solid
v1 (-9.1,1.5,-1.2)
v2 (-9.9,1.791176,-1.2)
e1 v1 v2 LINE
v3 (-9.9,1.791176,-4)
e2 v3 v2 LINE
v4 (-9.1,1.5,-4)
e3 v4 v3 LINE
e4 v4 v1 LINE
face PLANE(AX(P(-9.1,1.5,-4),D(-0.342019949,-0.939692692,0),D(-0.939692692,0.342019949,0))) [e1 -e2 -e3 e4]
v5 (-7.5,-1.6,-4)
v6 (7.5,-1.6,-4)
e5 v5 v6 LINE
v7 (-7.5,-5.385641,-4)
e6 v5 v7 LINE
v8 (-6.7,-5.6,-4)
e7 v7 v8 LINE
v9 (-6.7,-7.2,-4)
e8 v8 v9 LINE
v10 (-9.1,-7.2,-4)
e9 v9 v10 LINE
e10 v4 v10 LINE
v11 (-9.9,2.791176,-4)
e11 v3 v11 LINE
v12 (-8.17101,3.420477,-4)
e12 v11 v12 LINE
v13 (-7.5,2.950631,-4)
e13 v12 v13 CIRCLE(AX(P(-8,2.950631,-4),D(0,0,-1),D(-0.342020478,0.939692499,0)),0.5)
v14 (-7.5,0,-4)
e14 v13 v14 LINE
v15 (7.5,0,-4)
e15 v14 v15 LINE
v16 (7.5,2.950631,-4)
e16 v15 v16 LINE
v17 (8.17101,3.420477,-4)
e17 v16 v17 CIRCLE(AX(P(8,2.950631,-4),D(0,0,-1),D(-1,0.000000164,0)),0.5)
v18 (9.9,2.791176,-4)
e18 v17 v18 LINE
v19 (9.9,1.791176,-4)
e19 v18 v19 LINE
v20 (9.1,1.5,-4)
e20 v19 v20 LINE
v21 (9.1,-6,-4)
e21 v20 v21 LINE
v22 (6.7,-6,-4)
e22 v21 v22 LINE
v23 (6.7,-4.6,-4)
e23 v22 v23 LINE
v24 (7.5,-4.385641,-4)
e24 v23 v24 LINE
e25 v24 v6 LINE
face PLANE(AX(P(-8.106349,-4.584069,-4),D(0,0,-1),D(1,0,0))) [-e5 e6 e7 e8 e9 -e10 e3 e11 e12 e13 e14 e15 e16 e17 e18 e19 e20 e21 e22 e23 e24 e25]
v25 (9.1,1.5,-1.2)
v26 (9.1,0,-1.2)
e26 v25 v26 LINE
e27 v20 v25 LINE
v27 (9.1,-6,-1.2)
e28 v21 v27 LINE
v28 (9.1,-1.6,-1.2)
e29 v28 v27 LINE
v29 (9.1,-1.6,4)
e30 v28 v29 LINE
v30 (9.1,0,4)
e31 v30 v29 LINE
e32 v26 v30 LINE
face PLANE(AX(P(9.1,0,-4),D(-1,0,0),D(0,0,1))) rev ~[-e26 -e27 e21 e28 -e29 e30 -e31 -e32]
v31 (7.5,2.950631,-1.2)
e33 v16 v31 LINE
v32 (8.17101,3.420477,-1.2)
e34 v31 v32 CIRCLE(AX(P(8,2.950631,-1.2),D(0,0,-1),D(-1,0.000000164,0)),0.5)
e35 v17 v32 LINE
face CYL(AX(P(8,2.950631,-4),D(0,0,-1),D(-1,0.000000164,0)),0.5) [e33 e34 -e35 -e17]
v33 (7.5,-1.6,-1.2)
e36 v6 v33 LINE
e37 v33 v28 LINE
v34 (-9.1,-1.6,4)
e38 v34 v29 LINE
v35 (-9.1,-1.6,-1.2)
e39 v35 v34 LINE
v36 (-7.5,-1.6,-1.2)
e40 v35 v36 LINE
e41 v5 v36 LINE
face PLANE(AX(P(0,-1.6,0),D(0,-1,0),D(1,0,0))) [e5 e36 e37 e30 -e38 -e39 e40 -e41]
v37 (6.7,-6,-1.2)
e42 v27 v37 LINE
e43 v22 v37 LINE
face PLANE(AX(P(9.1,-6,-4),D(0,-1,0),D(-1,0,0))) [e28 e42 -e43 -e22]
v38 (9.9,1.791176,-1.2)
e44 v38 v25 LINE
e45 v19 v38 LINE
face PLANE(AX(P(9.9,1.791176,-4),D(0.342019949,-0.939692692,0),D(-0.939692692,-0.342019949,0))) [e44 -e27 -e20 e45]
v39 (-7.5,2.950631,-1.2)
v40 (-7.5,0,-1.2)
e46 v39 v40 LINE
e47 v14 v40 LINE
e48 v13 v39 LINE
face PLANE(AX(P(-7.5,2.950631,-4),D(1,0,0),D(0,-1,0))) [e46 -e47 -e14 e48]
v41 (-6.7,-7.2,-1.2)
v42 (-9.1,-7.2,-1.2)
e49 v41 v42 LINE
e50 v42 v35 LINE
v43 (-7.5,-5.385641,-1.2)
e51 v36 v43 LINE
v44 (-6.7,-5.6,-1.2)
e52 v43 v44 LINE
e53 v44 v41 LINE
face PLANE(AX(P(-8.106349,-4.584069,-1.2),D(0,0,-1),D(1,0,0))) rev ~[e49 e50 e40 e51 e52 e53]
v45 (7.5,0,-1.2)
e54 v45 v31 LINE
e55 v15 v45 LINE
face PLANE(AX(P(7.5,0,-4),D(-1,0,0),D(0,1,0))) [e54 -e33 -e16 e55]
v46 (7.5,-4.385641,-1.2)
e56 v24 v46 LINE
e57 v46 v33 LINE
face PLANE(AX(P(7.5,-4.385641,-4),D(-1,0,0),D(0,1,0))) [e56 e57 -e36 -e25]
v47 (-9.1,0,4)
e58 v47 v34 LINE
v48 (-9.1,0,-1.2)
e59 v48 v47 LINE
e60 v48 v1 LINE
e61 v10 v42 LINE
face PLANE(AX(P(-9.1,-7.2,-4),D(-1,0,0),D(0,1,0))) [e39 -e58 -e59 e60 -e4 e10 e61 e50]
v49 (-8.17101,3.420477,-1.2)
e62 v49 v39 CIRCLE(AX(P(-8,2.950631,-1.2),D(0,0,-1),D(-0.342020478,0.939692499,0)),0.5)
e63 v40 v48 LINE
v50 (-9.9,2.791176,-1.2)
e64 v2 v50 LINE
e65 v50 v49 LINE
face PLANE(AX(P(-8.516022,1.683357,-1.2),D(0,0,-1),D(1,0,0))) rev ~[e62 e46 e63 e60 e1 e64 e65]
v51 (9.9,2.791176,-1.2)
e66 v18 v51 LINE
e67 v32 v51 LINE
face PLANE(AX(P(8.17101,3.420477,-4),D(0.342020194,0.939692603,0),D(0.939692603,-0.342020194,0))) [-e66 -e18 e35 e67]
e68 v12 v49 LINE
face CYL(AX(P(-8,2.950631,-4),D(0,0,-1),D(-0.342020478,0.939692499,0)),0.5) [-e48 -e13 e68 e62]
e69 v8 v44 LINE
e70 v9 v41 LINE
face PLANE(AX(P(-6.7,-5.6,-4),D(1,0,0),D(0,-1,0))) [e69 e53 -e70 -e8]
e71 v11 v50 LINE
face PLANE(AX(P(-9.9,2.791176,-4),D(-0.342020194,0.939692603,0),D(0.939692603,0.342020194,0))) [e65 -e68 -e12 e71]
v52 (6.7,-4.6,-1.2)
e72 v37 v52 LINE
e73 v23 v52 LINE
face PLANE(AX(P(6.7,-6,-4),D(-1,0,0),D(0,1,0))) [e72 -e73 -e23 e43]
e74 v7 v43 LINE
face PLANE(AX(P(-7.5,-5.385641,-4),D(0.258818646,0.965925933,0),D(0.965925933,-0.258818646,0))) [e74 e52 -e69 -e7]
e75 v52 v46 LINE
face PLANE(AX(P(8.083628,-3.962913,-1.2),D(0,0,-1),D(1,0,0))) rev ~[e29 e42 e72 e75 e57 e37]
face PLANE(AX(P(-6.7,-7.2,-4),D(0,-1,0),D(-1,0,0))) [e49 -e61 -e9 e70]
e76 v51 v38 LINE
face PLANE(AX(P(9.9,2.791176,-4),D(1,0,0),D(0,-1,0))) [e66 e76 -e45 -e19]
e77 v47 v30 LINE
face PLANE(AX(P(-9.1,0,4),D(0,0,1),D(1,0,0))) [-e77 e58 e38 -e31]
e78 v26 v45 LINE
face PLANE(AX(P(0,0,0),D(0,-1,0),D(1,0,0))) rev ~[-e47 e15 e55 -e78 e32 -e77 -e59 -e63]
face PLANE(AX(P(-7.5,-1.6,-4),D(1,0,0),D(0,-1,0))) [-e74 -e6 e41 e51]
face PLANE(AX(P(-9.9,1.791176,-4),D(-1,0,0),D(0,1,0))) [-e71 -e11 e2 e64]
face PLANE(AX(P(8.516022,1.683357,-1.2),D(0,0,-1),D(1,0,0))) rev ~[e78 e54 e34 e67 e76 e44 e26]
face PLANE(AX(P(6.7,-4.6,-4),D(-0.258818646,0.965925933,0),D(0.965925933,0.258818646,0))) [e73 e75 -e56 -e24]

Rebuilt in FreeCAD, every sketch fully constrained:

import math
import FreeCAD as App
import Part
import Sketcher

V = App.Vector
Q = App.Units.Quantity

doc = App.newDocument("Part")
body = doc.addObject("PartDesign::Body", "Body")

# Sketch on XZ plane
sketch1 = body.newObject("Sketcher::SketchObject", "Sketch")
sketch1.AttachmentSupport = (doc.getObject("XZ_Plane"), [""])
sketch1.MapMode = "FlatFace"
sketch1.addGeometry([
    Part.LineSegment(V(-9, 4, 0), V(-9, -4, 0)),
    Part.LineSegment(V(-9, -4, 0), V(9, -4, 0)),
    Part.LineSegment(V(9, -4, 0), V(9, 4, 0)),
    Part.LineSegment(V(9, 4, 0), V(-9, 4, 0)),
], False)
sketch1.addConstraint([
    Sketcher.Constraint("Coincident", 0, 2, 1, 1),
    Sketcher.Constraint("Coincident", 1, 2, 2, 1),
    Sketcher.Constraint("Coincident", 2, 2, 3, 1),
    Sketcher.Constraint("Coincident", 3, 2, 0, 1),
    Sketcher.Constraint("Vertical", 0),
    Sketcher.Constraint("Horizontal", 1),
    Sketcher.Constraint("Vertical", 2),
    Sketcher.Constraint("Horizontal", 3),
    Sketcher.Constraint("Symmetric", 0, 2, 2, 2, -1, 1),
    Sketcher.Constraint("DistanceY", 0, 2, 0, 1, 8.0),
    Sketcher.Constraint("DistanceX", 1, 1, 1, 2, 18.2),
])
pad1 = body.newObject("PartDesign::Pad", "Pad")
pad1.Profile = sketch1
pad1.Length = 1.6

# Sketch on XY plane
sketch2 = body.newObject("Sketcher::SketchObject", "Sketch001")
sketch2.AttachmentSupport = (doc.getObject("XY_Plane"), [""])
sketch2.MapMode = "FlatFace"
sketch2.AttachmentOffset = App.Placement(V(0, 0, -4), App.Rotation())
sketch2.addGeometry([
    Part.LineSegment(V(-9.1, -7.2, 0), V(-9.1, -1.6, 0)),  # 0
    Part.LineSegment(V(-9.1, -1.6, 0), V(-7.5, -1.6, 0)),  # 1
    Part.LineSegment(V(-7.5, -1.6, 0), V(-7.5, -5.39, 0)),  # 2
    Part.LineSegment(V(-7.5, -5.39, 0), V(-6.7, -5.6, 0)),  # 3
    Part.LineSegment(V(-6.7, -5.6, 0), V(-6.7, -7.2, 0)),  # 4
    Part.LineSegment(V(-6.7, -7.2, 0), V(-9.1, -7.2, 0)),  # 5
    Part.LineSegment(V(7.5, -4.39, 0), V(7.5, -1.6, 0)),  # 6
    Part.LineSegment(V(7.5, -1.6, 0), V(9.1, -1.6, 0)),  # 7
    Part.LineSegment(V(9.1, -1.6, 0), V(9.1, -6, 0)),  # 8
    Part.LineSegment(V(9.1, -6, 0), V(6.7, -6, 0)),  # 9
    Part.LineSegment(V(6.7, -6, 0), V(6.7, -4.6, 0)),  # 10
    Part.LineSegment(V(6.7, -4.6, 0), V(7.5, -4.39, 0)),  # 11
    Part.LineSegment(V(-7.5, 0, 0), V(-9.1, 0, 0)),  # 12
    Part.LineSegment(V(-9.1, 0, 0), V(-9.1, 1.5, 0)),  # 13
    Part.LineSegment(V(-9.1, 1.5, 0), V(-9.9, 1.79, 0)),  # 14
    Part.LineSegment(V(-9.9, 1.79, 0), V(-9.9, 2.79, 0)),  # 15
    Part.LineSegment(V(-9.9, 2.79, 0), V(-8.17, 3.42, 0)),  # 16
    Part.ArcOfCircle(Part.Circle(V(-8, 2.95, 0), V(0, 0, 1), 0.5), math.radians(0), math.radians(110)),  # 17
    Part.LineSegment(V(-7.5, 2.95, 0), V(-7.5, 0, 0)),  # 18
    Part.LineSegment(V(9.1, 0, 0), V(7.5, 0, 0)),  # 19
    Part.LineSegment(V(7.5, 0, 0), V(7.5, 2.95, 0)),  # 20
    Part.ArcOfCircle(Part.Circle(V(8, 2.95, 0), V(0, 0, 1), 0.5), math.radians(70), math.radians(180)),  # 21
    Part.LineSegment(V(8.17, 3.42, 0), V(9.9, 2.79, 0)),  # 22
    Part.LineSegment(V(9.9, 2.79, 0), V(9.9, 1.79, 0)),  # 23
    Part.LineSegment(V(9.9, 1.79, 0), V(9.1, 1.5, 0)),  # 24
    Part.LineSegment(V(9.1, 1.5, 0), V(9.1, 0, 0)),  # 25
], False)
sketch2.addConstraint([
    Sketcher.Constraint("Coincident", 0, 2, 1, 1),
    Sketcher.Constraint("Coincident", 1, 2, 2, 1),
    Sketcher.Constraint("Coincident", 2, 2, 3, 1),
    Sketcher.Constraint("Coincident", 3, 2, 4, 1),
    Sketcher.Constraint("Coincident", 4, 2, 5, 1),
    Sketcher.Constraint("Coincident", 5, 2, 0, 1),
    Sketcher.Constraint("Coincident", 6, 2, 7, 1),
    Sketcher.Constraint("Coincident", 7, 2, 8, 1),
    Sketcher.Constraint("Coincident", 8, 2, 9, 1),
    Sketcher.Constraint("Coincident", 9, 2, 10, 1),
    Sketcher.Constraint("Coincident", 10, 2, 11, 1),
    Sketcher.Constraint("Coincident", 11, 2, 6, 1),
    Sketcher.Constraint("Coincident", 12, 2, 13, 1),
    Sketcher.Constraint("Coincident", 13, 2, 14, 1),
    Sketcher.Constraint("Coincident", 14, 2, 15, 1),
    Sketcher.Constraint("Coincident", 15, 2, 16, 1),
    Sketcher.Constraint("Tangent", 16, 2, 17, 2),
    Sketcher.Constraint("Tangent", 17, 1, 18, 1),
    Sketcher.Constraint("Coincident", 18, 2, 12, 1),
    Sketcher.Constraint("Coincident", 19, 2, 20, 1),
    Sketcher.Constraint("Tangent", 20, 2, 21, 2),
    Sketcher.Constraint("Tangent", 21, 1, 22, 1),
    Sketcher.Constraint("Coincident", 22, 2, 23, 1),
    Sketcher.Constraint("Coincident", 23, 2, 24, 1),
    Sketcher.Constraint("Coincident", 24, 2, 25, 1),
    Sketcher.Constraint("Coincident", 25, 2, 19, 1),
    Sketcher.Constraint("Vertical", 0),
    Sketcher.Constraint("Horizontal", 1),
    Sketcher.Constraint("Vertical", 2),
    Sketcher.Constraint("Vertical", 4),
    Sketcher.Constraint("Horizontal", 5),
    Sketcher.Constraint("Vertical", 6),
    Sketcher.Constraint("Horizontal", 7),
    Sketcher.Constraint("Vertical", 8),
    Sketcher.Constraint("Horizontal", 9),
    Sketcher.Constraint("Vertical", 10),
    Sketcher.Constraint("Horizontal", 12),
    Sketcher.Constraint("Vertical", 13),
    Sketcher.Constraint("Vertical", 15),
    Sketcher.Constraint("Vertical", 18),
    Sketcher.Constraint("Horizontal", 19),
    Sketcher.Constraint("Vertical", 20),
    Sketcher.Constraint("Vertical", 23),
    Sketcher.Constraint("Vertical", 25),
    Sketcher.Constraint("Equal", 17, 21),
    Sketcher.Constraint("Symmetric", 18, 2, 19, 2, -1, 1),
    Sketcher.Constraint("Symmetric", 1, 2, 6, 2, -2),
    Sketcher.Constraint("Symmetric", 16, 2, 21, 1, -2),
    Sketcher.Constraint("Symmetric", 14, 2, 23, 2, -2),
    Sketcher.Constraint("Symmetric", 13, 2, 24, 2, -2),
    Sketcher.Constraint("PointOnObject", 12, 2, -1),
    Sketcher.Constraint("Parallel", 14, 22),
    Sketcher.Constraint("Vertical", 5, 2, 12, 2),
    Sketcher.Constraint("Vertical", 2, 2, 17, 1),
    Sketcher.Constraint("Vertical", 8, 2, 24, 2),
    Sketcher.Constraint("Equal", 5, 9),
    Sketcher.Constraint("Equal", 19, 4),
    Sketcher.Constraint("Equal", 3, 11),
    Sketcher.Constraint("Radius", 17, 0.5),
    Sketcher.Constraint("DistanceY", 15, 1, 15, 2, 1.0),
    Sketcher.Constraint("Angle", 14, Q("160.000012 deg")),
    Sketcher.Constraint("DistanceX", 1, 1, 1, 2, 1.6),
    Sketcher.Constraint("DistanceX", 5, 2, 5, 1, 2.4),
    Sketcher.Constraint("DistanceY", 0, 1, 0, 2, 5.6),
    Sketcher.Constraint("DistanceY", 8, 2, 8, 1, 4.4),
    Sketcher.Constraint("DistanceY", 10, 1, 10, 2, 1.4),
    Sketcher.Constraint("DistanceY", 13, 1, 13, 2, 1.5),
    Sketcher.Constraint("DistanceX", 17, 3, -1, 1, 8.0),
    Sketcher.Constraint("DistanceY", 8, 2, -1, 1, 6.0),
    Sketcher.Constraint("DistanceX", 14, 2, -1, 1, 9.9),
    Sketcher.Constraint("DistanceY", 2, 2, 2, 1, 3.785641),
])
pad2 = body.newObject("PartDesign::Pad", "Pad001")
pad2.Profile = sketch2
pad2.Length = 2.8

doc.recompute()
